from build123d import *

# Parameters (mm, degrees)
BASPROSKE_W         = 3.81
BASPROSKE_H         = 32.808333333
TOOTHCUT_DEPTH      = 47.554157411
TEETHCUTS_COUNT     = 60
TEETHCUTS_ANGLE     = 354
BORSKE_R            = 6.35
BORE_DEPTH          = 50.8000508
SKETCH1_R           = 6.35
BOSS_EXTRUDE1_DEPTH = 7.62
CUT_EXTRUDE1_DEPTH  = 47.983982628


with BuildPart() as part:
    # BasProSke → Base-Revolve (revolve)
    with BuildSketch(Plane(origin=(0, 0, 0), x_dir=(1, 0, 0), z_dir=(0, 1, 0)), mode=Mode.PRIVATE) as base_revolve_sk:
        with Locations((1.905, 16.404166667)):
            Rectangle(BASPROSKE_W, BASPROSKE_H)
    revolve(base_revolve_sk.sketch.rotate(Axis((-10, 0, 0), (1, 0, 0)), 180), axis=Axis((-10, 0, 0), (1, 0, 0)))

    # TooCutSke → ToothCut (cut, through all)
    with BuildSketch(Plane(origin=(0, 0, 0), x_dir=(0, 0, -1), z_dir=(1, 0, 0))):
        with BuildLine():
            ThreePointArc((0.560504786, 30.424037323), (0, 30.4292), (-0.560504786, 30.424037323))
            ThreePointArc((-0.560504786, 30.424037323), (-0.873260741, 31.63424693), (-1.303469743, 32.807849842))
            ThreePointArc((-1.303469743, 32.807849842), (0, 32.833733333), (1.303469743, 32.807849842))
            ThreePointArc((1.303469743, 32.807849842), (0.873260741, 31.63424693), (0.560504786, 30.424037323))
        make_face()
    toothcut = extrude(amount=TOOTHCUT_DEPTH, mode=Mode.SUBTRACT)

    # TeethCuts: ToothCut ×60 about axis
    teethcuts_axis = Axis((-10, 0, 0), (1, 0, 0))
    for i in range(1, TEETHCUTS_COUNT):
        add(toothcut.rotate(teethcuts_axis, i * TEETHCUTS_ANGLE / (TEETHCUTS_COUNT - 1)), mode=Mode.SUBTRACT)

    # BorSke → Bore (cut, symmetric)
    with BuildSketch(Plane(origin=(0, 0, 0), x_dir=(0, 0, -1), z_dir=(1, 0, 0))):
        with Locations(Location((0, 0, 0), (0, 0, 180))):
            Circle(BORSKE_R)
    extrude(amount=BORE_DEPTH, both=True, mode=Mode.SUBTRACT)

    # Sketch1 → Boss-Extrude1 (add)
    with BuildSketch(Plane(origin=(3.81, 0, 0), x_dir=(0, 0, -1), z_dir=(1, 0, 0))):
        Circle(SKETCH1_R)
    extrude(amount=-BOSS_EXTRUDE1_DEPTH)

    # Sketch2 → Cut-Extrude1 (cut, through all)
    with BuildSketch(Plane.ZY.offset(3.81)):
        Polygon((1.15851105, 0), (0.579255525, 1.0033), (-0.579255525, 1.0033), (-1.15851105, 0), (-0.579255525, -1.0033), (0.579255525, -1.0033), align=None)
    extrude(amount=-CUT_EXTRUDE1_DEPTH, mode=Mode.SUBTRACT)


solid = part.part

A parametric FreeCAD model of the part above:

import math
import FreeCAD as App
import Part
import Sketcher
from FreeCAD import Vector
Q = App.Units.Quantity


def add_polygon(sketch, points):
    """Adds a closed chain of lines whose ends are joined by coincident constraints."""
    first, n = sketch.GeometryCount, len(points)
    for a, b in zip(points, points[1:] + points[:1]):
        sketch.addGeometry(Part.LineSegment(App.Vector(*a, 0), App.Vector(*b, 0)), False)
    for i in range(n):
        sketch.addConstraint(Sketcher.Constraint("Coincident", first + i, 2, first + (i + 1) % n, 1))

doc = App.newDocument("Part")
body = doc.addObject("PartDesign::Body", "Body")

sketch1 = body.newObject("Sketcher::SketchObject", "Sketch")
sketch1.AttachmentSupport = (doc.getObject("XZ_Plane"), [""])
sketch1.MapMode = "FlatFace"
add_polygon(sketch1, [(0, -32.8), (0, 0), (3.8, 0), (3.8, -32.8)])
sketch1.addConstraint(Sketcher.Constraint("Vertical", 0))
sketch1.addConstraint(Sketcher.Constraint("Horizontal", 1))
sketch1.addConstraint(Sketcher.Constraint("Vertical", 2))
sketch1.addConstraint(Sketcher.Constraint("Horizontal", 3))
sketch1.addConstraint(Sketcher.Constraint("Coincident", 0, 2, -1, 1))
sketch1.addConstraint(Sketcher.Constraint("DistanceX", 1, 1, 1, 2, Q("0.15 in")))
sketch1.addConstraint(Sketcher.Constraint("DistanceY", 0, 1, 0, 2, Q("32.808333 mm")))
revolution = body.newObject("PartDesign::Revolution", "Revolution")
revolution.Profile = sketch1
revolution.ReferenceAxis = (sketch1, ["H_Axis"])
revolution.Angle = 360

sketch2 = body.newObject("Sketcher::SketchObject", "Sketch001")
sketch2.AttachmentSupport = (doc.getObject("YZ_Plane"), [""])
sketch2.MapMode = "FlatFace"
sketch2.addGeometry(Part.ArcOfCircle(Part.Circle(Vector(0, 0, 0), Vector(0, 0, 1), 30.4), math.radians(-1.06), math.radians(1.06)), False)
sketch2.addGeometry(Part.ArcOfCircle(Part.Circle(Vector(27.9, -13, 0), Vector(0, 0, 1), 12.7), math.radians(67.05), math.radians(78.33)), False)
sketch2.addGeometry(Part.ArcOfCircle(Part.Circle(Vector(0, 0, 0), Vector(0, 0, 1), 32.8), math.radians(-2.28), math.radians(2.28)), False)
sketch2.addGeometry(Part.ArcOfCircle(Part.Circle(Vector(27.9, 13, 0), Vector(0, 0, 1), 12.7), math.radians(-78.33), math.radians(-67.05)), False)
sketch2.addConstraint(Sketcher.Constraint("Coincident", 0, 1, 1, 2))
sketch2.addConstraint(Sketcher.Constraint("Coincident", 1, 1, 2, 1))
sketch2.addConstraint(Sketcher.Constraint("Coincident", 2, 2, 3, 2))
sketch2.addConstraint(Sketcher.Constraint("Coincident", 3, 1, 0, 2))
sketch2.addConstraint(Sketcher.Constraint("Coincident", 0, 3, -1, 1))
sketch2.addConstraint(Sketcher.Constraint("Coincident", 2, 3, -1, 1))
sketch2.addConstraint(Sketcher.Constraint("Equal", 1, 3))
sketch2.addConstraint(Sketcher.Constraint("Symmetric", 1, 3, 3, 3, -1))
sketch2.addConstraint(Sketcher.Constraint("Radius", 1, Q("0.5 in")))
sketch2.addConstraint(Sketcher.Constraint("Radius", 0, Q("1.198 in")))
sketch2.addConstraint(Sketcher.Constraint("Radius", 2, Q("32.833734 mm")))
sketch2.addConstraint(Sketcher.Constraint("DistanceY", 0, 1, 3, 3, Q("0.5338 in")))
sketch2.addConstraint(Sketcher.Constraint("DistanceY", 1, 1, -1, 1, Q("1.30347 mm")))
pocket1 = body.newObject("PartDesign::Pocket", "Pocket")
pocket1.Profile = sketch2
pocket1.Type = "ThroughAll"
pocket1.Reversed = True
doc.recompute()

polarpattern = body.newObject("PartDesign::PolarPattern", "PolarPattern")
polarpattern.Originals = [pocket1]
polarpattern.Axis = (doc.getObject("X_Axis"), [""])
polarpattern.Angle = 360
polarpattern.Occurrences = 60
body.Tip = polarpattern

sketch3 = body.newObject("Sketcher::SketchObject", "Sketch002")
sketch3.AttachmentSupport = (doc.getObject("YZ_Plane"), [""])
sketch3.MapMode = "FlatFace"
sketch3.addGeometry(Part.Circle(Vector(0, 0, 0), Vector(0, 0, 1), 6), False)
sketch3.addConstraint(Sketcher.Constraint("Coincident", 0, 3, -1, 1))
sketch3.addConstraint(Sketcher.Constraint("Diameter", 0, Q("0.5 in")))
pocket2 = body.newObject("PartDesign::Pocket", "Pocket001")
pocket2.Profile = sketch3
pocket2.Length = 101.600102
pocket2.Midplane = True

sketch4 = body.newObject("Sketcher::SketchObject", "Sketch003")
sketch4.AttachmentSupport = (doc.getObject("YZ_Plane"), [""])
sketch4.MapMode = "FlatFace"
sketch4.AttachmentOffset = App.Placement(Vector(0, 0, 0.15 * 25.4), App.Rotation())
sketch4.addGeometry(Part.Circle(Vector(0, 0, 0), Vector(0, 0, 1), 6), False)
sketch4.addConstraint(Sketcher.Constraint("Coincident", 0, 3, -1, 1))
sketch4.addConstraint(Sketcher.Constraint("Diameter", 0, Q("0.5 in")))
pad1 = body.newObject("PartDesign::Pad", "Pad")
pad1.Profile = sketch4
pad1.Length = Q("0.3 in")
pad1.Reversed = True

sketch5 = body.newObject("Sketcher::SketchObject", "Sketch004")
sketch5.AttachmentSupport = (doc.getObject("YZ_Plane"), [""])
sketch5.MapMode = "FlatFace"
sketch5.AttachmentOffset = App.Placement(Vector(0, 0, -0.15 * 25.4), App.Rotation())
add_polygon(sketch5, [(0, 1.2), (1, 0.6), (1, -0.6), (0, -1.2), (-1, -0.6), (-1, 0.6)])
sketch5.addConstraint(Sketcher.Constraint("Vertical", 1))
sketch5.addConstraint(Sketcher.Constraint("Vertical", 4))
sketch5.addConstraint(Sketcher.Constraint("Symmetric", 0, 2, 3, 2, -1, 1))
sketch5.addConstraint(Sketcher.Constraint("Symmetric", 2, 2, 5, 2, -1, 1))
sketch5.addConstraint(Sketcher.Constraint("PointOnObject", 2, 2, -2))
sketch5.addConstraint(Sketcher.Constraint("Parallel", 2, 5))
sketch5.addConstraint(Sketcher.Constraint("Horizontal", 1, 2, 3, 2))
sketch5.addConstraint(Sketcher.Constraint("Angle", 0, Q("-30 deg")))
sketch5.addConstraint(Sketcher.Constraint("DistanceX", 3, 2, 1, 2, Q("0.079 in")))
sketch5.addConstraint(Sketcher.Constraint("DistanceY", 1, 2, 1, 1, Q("1.158511 mm")))
pocket3 = body.newObject("PartDesign::Pocket", "Pocket002")
pocket3.Profile = sketch5
pocket3.Type = "ThroughAll"
pocket3.Reversed = True

doc.recompute()
